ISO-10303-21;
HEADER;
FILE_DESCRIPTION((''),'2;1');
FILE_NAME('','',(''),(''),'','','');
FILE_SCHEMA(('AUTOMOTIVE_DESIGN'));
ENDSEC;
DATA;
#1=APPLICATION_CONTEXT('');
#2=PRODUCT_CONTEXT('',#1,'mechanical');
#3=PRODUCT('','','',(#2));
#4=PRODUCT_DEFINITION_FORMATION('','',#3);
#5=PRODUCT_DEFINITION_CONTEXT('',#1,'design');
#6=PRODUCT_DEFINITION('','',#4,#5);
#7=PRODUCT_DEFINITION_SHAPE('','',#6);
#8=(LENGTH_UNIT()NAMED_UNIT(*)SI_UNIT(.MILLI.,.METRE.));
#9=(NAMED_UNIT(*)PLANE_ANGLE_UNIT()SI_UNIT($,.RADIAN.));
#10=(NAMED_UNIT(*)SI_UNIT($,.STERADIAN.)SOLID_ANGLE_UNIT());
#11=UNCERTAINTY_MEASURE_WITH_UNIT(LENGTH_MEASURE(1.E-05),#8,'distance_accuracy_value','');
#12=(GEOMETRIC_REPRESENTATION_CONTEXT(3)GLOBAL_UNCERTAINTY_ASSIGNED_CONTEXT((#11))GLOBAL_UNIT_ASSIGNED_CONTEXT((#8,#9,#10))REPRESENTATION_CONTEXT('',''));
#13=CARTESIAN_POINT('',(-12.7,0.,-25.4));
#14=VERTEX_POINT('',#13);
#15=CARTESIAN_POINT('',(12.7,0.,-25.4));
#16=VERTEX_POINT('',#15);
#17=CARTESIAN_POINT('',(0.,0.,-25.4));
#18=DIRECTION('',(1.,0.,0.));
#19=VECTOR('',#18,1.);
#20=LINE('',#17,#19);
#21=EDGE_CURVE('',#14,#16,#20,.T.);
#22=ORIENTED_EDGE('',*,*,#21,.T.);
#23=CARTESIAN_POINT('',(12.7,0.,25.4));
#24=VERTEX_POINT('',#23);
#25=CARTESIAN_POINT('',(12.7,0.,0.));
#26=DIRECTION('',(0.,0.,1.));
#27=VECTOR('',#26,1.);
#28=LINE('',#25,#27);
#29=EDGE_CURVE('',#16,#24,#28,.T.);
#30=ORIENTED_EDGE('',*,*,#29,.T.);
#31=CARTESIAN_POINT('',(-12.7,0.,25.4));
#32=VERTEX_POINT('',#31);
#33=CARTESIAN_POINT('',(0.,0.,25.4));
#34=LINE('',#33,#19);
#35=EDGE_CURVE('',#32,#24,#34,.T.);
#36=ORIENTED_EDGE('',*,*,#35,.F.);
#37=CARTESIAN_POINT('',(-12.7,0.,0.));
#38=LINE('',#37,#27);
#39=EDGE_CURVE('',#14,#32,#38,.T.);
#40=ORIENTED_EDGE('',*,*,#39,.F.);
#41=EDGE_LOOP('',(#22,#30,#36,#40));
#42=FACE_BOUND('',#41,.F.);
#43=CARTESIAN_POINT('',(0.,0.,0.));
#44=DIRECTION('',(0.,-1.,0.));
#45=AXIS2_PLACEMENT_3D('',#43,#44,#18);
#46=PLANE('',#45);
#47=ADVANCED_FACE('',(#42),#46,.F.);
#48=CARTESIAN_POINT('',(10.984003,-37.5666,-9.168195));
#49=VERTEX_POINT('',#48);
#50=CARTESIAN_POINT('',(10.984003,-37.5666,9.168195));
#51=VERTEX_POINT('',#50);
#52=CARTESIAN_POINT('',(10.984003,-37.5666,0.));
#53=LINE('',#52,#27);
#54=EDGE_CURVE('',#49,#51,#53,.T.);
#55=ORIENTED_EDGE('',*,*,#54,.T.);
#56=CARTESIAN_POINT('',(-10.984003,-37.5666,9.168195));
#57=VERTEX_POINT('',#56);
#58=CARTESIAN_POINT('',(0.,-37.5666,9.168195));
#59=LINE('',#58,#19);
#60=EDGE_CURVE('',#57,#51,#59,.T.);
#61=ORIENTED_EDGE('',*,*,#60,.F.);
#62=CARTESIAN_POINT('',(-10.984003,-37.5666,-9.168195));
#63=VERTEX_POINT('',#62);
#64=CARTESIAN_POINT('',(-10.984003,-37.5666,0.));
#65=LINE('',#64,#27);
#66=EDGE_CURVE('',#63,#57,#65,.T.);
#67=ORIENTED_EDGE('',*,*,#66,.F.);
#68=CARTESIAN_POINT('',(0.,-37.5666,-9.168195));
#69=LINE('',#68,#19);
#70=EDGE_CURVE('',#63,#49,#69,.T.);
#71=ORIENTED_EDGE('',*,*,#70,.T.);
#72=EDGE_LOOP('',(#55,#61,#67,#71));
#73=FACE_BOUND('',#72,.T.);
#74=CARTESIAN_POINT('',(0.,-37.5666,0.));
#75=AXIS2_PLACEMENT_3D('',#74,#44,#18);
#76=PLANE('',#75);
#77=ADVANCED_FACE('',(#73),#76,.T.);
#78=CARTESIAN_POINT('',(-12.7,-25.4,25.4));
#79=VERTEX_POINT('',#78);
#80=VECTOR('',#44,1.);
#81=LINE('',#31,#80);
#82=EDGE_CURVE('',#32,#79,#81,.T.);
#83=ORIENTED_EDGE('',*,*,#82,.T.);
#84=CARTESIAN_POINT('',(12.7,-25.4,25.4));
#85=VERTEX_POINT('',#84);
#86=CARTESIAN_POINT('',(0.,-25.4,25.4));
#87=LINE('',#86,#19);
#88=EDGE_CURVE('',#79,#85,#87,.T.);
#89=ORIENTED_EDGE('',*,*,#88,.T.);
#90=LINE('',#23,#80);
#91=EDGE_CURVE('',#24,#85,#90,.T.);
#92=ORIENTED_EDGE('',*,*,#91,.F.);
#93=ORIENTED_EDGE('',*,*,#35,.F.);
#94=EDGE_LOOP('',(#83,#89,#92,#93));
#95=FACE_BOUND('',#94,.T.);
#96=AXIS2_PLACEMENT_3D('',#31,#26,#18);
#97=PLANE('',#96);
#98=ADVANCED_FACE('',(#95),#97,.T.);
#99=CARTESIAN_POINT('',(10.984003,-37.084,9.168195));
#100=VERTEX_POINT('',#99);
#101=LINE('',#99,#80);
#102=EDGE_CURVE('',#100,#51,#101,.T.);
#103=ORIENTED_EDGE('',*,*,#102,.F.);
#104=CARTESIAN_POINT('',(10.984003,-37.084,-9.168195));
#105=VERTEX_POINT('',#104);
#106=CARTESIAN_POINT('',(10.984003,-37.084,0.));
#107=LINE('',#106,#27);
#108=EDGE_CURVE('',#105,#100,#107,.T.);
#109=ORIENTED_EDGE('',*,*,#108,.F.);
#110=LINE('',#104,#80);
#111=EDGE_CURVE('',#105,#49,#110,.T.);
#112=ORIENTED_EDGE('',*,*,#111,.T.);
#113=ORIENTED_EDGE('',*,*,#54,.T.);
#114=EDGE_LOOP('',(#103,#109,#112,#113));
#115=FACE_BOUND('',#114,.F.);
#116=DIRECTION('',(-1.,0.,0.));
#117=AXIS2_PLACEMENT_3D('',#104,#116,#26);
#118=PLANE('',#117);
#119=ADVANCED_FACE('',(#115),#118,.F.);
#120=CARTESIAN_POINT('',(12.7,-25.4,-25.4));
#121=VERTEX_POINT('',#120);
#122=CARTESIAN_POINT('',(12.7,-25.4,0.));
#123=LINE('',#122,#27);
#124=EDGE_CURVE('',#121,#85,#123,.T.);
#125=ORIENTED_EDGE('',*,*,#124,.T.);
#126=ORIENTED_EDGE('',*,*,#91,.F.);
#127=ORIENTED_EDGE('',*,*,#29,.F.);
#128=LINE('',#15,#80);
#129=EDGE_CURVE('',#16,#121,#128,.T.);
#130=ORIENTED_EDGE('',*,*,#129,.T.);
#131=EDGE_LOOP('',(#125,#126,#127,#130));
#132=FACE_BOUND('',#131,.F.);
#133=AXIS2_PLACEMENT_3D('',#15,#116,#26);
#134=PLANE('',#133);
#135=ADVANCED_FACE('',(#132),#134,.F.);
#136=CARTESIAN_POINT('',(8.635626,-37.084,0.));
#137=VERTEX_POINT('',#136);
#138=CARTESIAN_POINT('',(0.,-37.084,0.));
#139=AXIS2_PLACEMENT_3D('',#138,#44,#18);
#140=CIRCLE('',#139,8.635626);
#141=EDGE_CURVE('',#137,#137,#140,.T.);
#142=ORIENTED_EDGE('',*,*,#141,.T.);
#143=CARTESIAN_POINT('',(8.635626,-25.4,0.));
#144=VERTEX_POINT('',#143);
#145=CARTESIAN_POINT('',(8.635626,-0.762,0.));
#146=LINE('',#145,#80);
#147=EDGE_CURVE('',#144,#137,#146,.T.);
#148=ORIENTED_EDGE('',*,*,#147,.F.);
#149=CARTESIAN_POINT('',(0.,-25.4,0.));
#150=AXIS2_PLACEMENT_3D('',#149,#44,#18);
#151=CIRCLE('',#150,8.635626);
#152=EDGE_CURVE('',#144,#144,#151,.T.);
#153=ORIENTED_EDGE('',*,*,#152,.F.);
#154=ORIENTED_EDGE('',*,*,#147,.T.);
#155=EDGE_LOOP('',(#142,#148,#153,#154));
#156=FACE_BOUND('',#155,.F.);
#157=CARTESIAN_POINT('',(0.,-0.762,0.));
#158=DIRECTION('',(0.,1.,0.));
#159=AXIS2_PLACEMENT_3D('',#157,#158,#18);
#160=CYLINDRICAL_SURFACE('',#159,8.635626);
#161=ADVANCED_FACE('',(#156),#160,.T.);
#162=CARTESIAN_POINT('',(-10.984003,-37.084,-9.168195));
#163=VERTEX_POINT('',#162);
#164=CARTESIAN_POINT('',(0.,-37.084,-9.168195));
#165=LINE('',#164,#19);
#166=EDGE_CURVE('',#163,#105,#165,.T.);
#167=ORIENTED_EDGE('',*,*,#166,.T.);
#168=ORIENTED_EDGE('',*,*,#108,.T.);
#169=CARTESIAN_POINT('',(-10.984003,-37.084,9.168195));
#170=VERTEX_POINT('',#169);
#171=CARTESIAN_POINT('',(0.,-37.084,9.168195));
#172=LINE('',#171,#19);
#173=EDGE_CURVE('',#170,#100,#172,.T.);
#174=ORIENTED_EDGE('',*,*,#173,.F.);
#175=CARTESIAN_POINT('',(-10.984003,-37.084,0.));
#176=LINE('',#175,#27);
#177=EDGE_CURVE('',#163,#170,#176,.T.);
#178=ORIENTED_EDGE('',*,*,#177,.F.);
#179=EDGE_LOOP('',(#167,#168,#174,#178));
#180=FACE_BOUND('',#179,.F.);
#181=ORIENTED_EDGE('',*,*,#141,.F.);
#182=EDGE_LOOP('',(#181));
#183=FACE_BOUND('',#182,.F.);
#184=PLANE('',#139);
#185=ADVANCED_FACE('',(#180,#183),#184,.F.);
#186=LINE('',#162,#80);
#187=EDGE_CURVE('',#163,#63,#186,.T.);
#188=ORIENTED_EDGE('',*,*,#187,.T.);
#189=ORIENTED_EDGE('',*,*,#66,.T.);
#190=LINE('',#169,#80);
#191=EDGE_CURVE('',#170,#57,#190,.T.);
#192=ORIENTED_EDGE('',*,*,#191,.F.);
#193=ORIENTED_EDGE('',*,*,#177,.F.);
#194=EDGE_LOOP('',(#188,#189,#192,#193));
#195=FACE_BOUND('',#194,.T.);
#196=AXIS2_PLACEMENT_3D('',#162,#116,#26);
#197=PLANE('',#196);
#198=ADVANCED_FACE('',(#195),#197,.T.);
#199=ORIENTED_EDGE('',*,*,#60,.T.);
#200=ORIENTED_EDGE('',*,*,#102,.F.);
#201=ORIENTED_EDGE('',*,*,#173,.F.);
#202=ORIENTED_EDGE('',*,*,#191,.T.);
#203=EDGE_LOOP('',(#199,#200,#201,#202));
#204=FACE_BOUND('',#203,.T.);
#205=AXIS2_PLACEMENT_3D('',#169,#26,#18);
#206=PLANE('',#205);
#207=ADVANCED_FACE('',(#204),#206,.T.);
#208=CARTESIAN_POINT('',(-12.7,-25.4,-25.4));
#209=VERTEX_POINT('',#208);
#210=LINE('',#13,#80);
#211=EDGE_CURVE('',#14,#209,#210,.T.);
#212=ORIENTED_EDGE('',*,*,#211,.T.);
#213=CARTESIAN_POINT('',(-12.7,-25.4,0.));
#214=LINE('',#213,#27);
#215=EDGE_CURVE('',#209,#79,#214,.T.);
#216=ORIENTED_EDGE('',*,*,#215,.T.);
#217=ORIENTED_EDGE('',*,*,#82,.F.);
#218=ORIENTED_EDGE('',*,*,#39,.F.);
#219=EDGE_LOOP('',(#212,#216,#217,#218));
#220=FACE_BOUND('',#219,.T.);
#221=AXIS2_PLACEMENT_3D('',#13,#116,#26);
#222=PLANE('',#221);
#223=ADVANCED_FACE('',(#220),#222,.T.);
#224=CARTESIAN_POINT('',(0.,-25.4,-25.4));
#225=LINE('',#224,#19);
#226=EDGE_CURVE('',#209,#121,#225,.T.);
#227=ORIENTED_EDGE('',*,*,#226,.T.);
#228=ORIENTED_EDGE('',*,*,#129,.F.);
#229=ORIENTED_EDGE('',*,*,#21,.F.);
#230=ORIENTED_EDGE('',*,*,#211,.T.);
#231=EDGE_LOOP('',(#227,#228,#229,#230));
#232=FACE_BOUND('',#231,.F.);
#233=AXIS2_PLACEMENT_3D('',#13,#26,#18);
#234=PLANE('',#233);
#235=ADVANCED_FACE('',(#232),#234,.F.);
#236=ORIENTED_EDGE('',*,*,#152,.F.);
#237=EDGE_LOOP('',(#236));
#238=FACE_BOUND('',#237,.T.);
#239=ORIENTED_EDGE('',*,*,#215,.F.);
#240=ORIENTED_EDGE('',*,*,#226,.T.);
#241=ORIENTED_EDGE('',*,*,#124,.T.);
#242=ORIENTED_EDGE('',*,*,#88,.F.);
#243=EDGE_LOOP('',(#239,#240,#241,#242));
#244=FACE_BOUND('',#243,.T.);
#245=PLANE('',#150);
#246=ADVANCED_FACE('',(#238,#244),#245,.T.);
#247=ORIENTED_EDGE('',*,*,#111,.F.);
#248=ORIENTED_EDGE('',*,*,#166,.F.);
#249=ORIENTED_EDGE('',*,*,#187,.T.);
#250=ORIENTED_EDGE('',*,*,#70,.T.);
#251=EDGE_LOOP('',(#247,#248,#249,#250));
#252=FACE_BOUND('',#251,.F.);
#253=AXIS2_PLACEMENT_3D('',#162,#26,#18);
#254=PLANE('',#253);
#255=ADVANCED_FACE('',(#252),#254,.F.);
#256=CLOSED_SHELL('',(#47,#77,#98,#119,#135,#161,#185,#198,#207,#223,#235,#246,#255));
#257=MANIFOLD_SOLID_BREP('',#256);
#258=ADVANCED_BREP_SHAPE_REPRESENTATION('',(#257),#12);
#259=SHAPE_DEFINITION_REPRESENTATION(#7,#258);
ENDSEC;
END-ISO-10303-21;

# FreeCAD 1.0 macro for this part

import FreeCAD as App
import Part
import Sketcher
from FreeCAD import Vector
Q = App.Units.Quantity


def add_polygon(sketch, points):
    """Adds a closed chain of lines whose ends are joined by coincident constraints."""
    first, n = sketch.GeometryCount, len(points)
    for a, b in zip(points, points[1:] + points[:1]):
        sketch.addGeometry(Part.LineSegment(App.Vector(*a, 0), App.Vector(*b, 0)), False)
    for i in range(n):
        sketch.addConstraint(Sketcher.Constraint("Coincident", first + i, 2, first + (i + 1) % n, 1))

doc = App.newDocument("Part")
params = doc.addObject("Spreadsheet::Sheet", "Params")
for row, (alias, value) in enumerate([
    ("sketch1_width", "1 in"),
    ("sketch1_height", "2 in"),
    ("pad1_length", "1 in"),
    ("pocket1_length", "0.97 in"),
    ("pad2_length", "1.43 in"),
    ("pad3_length", "0.019 in"),
], start=1):
    params.set(f"A{row}", alias)
    params.set(f"B{row}", "=" + value)
    params.setAlias(f"B{row}", alias)

body = doc.addObject("PartDesign::Body", "Body")

# Sketch on XZ plane
sketch1 = body.newObject("Sketcher::SketchObject", "Sketch")
sketch1.AttachmentSupport = (doc.getObject("XZ_Plane"), [""])
sketch1.MapMode = "FlatFace"
add_polygon(sketch1, [(-13, 25), (-13, -25), (13, -25), (13, 25)])  # lines 0-3
sketch1.addConstraint([
    Sketcher.Constraint("Vertical", 0),
    Sketcher.Constraint("Horizontal", 1),
    Sketcher.Constraint("Vertical", 2),
    Sketcher.Constraint("Horizontal", 3),
    Sketcher.Constraint("Symmetric", 0, 2, 2, 2, -1, 1),
    Sketcher.Constraint("DistanceX", 1, 1, 1, 2, Q("1 in")),
    Sketcher.Constraint("DistanceY", 0, 2, 0, 1, Q("2 in")),
])
sketch1.setExpression("Constraints[9]", "Params.sketch1_width")
sketch1.setExpression("Constraints[10]", "Params.sketch1_height")
pad1 = body.newObject("PartDesign::Pad", "Pad")
pad1.Profile = sketch1
pad1.setExpression("Length", "Params.pad1_length")

# Sketch on XZ plane
sketch2 = body.newObject("Sketcher::SketchObject", "Sketch001")
sketch2.AttachmentSupport = (doc.getObject("XZ_Plane"), [""])
sketch2.MapMode = "FlatFace"
sketch2.AttachmentOffset = App.Placement(Vector(0, 0, 1 * 25.4), App.Rotation())
sketch2.addGeometry(Part.Circle(Vector(0, 0, 0), Vector(0, 0, 1), 9), False)
sketch2.addConstraint([
    Sketcher.Constraint("Coincident", 0, 3, -1, 1),
    Sketcher.Constraint("Diameter", 0, Q("17.271252 mm")),
])
pocket1 = body.newObject("PartDesign::Pocket", "Pocket")
pocket1.Profile = sketch2
pocket1.setExpression("Length", "Params.pocket1_length")

# Sketch on XZ plane
sketch3 = body.newObject("Sketcher::SketchObject", "Sketch002")
sketch3.AttachmentSupport = (doc.getObject("XZ_Plane"), [""])
sketch3.MapMode = "FlatFace"
sketch3.AttachmentOffset = App.Placement(Vector(0, 0, 0.03 * 25.4), App.Rotation())
sketch3.addGeometry(Part.Circle(Vector(0, 0, 0), Vector(0, 0, 1), 9), False)
sketch3.addConstraint([
    Sketcher.Constraint("Coincident", 0, 3, -1, 1),
    Sketcher.Constraint("Diameter", 0, Q("17.271252 mm")),
])
pad2 = body.newObject("PartDesign::Pad", "Pad001")
pad2.Profile = sketch3
pad2.setExpression("Length", "Params.pad2_length")

# Sketch on XZ plane
sketch4 = body.newObject("Sketcher::SketchObject", "Sketch003")
sketch4.AttachmentSupport = (doc.getObject("XZ_Plane"), [""])
sketch4.MapMode = "FlatFace"
sketch4.AttachmentOffset = App.Placement(Vector(0, 0, 1.46 * 25.4), App.Rotation())
add_polygon(sketch4, [(-11, 9), (-11, -9), (11, -9), (11, 9)])  # lines 0-3
sketch4.addConstraint([
    Sketcher.Constraint("Vertical", 0),
    Sketcher.Constraint("Horizontal", 1),
    Sketcher.Constraint("Vertical", 2),
    Sketcher.Constraint("Horizontal", 3),
    Sketcher.Constraint("Symmetric", 0, 2, 2, 2, -1, 1),
    Sketcher.Constraint("DistanceY", 0, 2, 0, 1, Q("18.33639 mm")),
    Sketcher.Constraint("DistanceX", 1, 1, 1, 2, Q("21.968006 mm")),
])
pad3 = body.newObject("PartDesign::Pad", "Pad002")
pad3.Profile = sketch4
pad3.setExpression("Length", "Params.pad3_length")

doc.recompute()
